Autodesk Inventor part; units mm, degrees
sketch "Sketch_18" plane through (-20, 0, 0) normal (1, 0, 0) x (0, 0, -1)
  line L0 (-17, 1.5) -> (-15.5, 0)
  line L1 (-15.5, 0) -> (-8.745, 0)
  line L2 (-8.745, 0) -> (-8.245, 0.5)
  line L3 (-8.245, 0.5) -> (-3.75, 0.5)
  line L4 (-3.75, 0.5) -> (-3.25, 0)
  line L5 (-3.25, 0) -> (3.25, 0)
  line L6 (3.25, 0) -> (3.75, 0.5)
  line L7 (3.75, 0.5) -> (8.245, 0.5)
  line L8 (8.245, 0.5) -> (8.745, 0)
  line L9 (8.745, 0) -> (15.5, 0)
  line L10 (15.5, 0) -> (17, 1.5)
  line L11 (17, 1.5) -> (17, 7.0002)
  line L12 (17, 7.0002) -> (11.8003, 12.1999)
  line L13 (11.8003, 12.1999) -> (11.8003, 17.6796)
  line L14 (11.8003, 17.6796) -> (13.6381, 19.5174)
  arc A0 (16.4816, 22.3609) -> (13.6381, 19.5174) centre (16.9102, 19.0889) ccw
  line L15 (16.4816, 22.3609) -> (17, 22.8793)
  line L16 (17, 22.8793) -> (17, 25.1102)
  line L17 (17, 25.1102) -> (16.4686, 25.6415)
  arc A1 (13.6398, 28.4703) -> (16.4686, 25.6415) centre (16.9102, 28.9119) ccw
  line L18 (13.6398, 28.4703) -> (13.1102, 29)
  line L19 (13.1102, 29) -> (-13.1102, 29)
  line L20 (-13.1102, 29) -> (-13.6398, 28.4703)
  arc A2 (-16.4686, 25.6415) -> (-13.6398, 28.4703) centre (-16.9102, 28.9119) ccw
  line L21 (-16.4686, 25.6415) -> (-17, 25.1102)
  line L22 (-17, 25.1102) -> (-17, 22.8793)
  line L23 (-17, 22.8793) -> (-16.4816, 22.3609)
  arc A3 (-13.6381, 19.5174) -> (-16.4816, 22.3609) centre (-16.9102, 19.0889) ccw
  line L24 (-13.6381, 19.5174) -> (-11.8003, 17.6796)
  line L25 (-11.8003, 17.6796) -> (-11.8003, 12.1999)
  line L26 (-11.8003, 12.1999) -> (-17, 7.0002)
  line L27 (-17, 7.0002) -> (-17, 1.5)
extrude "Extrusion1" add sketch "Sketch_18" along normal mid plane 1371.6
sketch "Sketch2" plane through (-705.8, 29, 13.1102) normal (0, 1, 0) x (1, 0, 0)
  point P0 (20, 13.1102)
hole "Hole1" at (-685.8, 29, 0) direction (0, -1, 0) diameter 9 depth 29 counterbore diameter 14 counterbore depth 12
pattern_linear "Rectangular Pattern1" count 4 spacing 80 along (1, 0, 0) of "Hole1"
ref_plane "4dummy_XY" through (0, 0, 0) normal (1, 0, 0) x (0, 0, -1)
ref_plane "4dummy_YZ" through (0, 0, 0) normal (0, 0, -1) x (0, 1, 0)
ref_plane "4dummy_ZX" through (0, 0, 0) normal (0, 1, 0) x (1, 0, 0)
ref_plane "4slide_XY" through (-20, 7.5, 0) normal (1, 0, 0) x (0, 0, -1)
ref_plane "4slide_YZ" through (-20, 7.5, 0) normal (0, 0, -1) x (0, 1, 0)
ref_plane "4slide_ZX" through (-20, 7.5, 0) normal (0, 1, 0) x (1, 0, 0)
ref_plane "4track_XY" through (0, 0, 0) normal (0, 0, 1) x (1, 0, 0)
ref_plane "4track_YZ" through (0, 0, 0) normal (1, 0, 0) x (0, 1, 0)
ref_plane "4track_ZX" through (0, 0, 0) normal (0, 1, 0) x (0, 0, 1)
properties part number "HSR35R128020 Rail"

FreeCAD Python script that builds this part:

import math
import FreeCAD as App
import Part
import Sketcher
from FreeCAD import Vector
Q = App.Units.Quantity

doc = App.newDocument("Part")
body = doc.addObject("PartDesign::Body", "Body")

# Sketch on YZ plane
sketch1 = body.newObject("Sketcher::SketchObject", "Sketch")
sketch1.AttachmentSupport = (doc.getObject("YZ_Plane"), [""])
sketch1.MapMode = "FlatFace"
sketch1.AttachmentOffset = App.Placement(Vector(0, 0, -20), App.Rotation())
sketch1.addGeometry([
    Part.LineSegment(Vector(7.0002, 17, 0), Vector(1.5, 17, 0)),  # 0
    Part.LineSegment(Vector(1.5, 17, 0), Vector(0, 15.5, 0)),  # 1
    Part.LineSegment(Vector(0, 15.5, 0), Vector(0, 8.745, 0)),  # 2
    Part.LineSegment(Vector(0, 8.745, 0), Vector(0.5, 8.245, 0)),  # 3
    Part.LineSegment(Vector(0.5, 8.245, 0), Vector(0.5, 3.75, 0)),  # 4
    Part.LineSegment(Vector(0.5, 3.75, 0), Vector(0, 3.25, 0)),  # 5
    Part.LineSegment(Vector(0, 3.25, 0), Vector(0, -3.25, 0)),  # 6
    Part.LineSegment(Vector(0, -3.25, 0), Vector(0.5, -3.75, 0)),  # 7
    Part.LineSegment(Vector(0.5, -3.75, 0), Vector(0.5, -8.245, 0)),  # 8
    Part.LineSegment(Vector(0.5, -8.245, 0), Vector(0, -8.745, 0)),  # 9
    Part.LineSegment(Vector(0, -8.745, 0), Vector(0, -15.5, 0)),  # 10
    Part.LineSegment(Vector(0, -15.5, 0), Vector(1.5, -17, 0)),  # 11
    Part.LineSegment(Vector(1.5, -17, 0), Vector(7.0002, -17, 0)),  # 12
    Part.LineSegment(Vector(7.0002, -17, 0), Vector(12.1999, -11.8003, 0)),  # 13
    Part.LineSegment(Vector(12.1999, -11.8003, 0), Vector(17.6796, -11.8003, 0)),  # 14
    Part.LineSegment(Vector(17.6796, -11.8003, 0), Vector(19.5174, -13.6381, 0)),  # 15
    Part.ArcOfCircle(Part.Circle(Vector(19.0889, -16.9102, 0), Vector(0, 0, 1), 3.299952), math.radians(7.462698), math.radians(82.539249)),  # 16
    Part.LineSegment(Vector(22.3609, -16.4816, 0), Vector(22.8793, -17, 0)),  # 17
    Part.LineSegment(Vector(22.8793, -17, 0), Vector(25.1102, -17, 0)),  # 18
    Part.LineSegment(Vector(25.1102, -17, 0), Vector(25.6415, -16.4686, 0)),  # 19
    Part.ArcOfCircle(Part.Circle(Vector(28.9119, -16.9102, 0), Vector(0, 0, 1), 3.30008), math.radians(97.6901), math.radians(172.3099)),  # 20
    Part.LineSegment(Vector(28.4703, -13.6398, 0), Vector(29, -13.1102, 0)),  # 21
    Part.LineSegment(Vector(29, -13.1102, 0), Vector(29, 13.1102, 0)),  # 22
    Part.LineSegment(Vector(29, 13.1102, 0), Vector(28.4703, 13.6398, 0)),  # 23
    Part.ArcOfCircle(Part.Circle(Vector(28.9119, 16.9102, 0), Vector(0, 0, 1), 3.30008), math.radians(-172.3099), math.radians(-97.6901)),  # 24
    Part.LineSegment(Vector(25.6415, 16.4686, 0), Vector(25.1102, 17, 0)),  # 25
    Part.LineSegment(Vector(25.1102, 17, 0), Vector(22.8793, 17, 0)),  # 26
    Part.LineSegment(Vector(22.8793, 17, 0), Vector(22.3609, 16.4816, 0)),  # 27
    Part.ArcOfCircle(Part.Circle(Vector(19.0889, 16.9102, 0), Vector(0, 0, 1), 3.300038), math.radians(-82.539249), math.radians(-7.462698)),  # 28
    Part.LineSegment(Vector(19.5174, 13.6381, 0), Vector(17.6796, 11.8003, 0)),  # 29
    Part.LineSegment(Vector(17.6796, 11.8003, 0), Vector(12.1999, 11.8003, 0)),  # 30
    Part.LineSegment(Vector(12.1999, 11.8003, 0), Vector(7.0002, 17, 0)),  # 31
], False)
sketch1.addConstraint([
    Sketcher.Constraint("Coincident", 0, 2, 1, 1),
    Sketcher.Constraint("Coincident", 1, 2, 2, 1),
    Sketcher.Constraint("Coincident", 2, 2, 3, 1),
    Sketcher.Constraint("Coincident", 3, 2, 4, 1),
    Sketcher.Constraint("Coincident", 4, 2, 5, 1),
    Sketcher.Constraint("Coincident", 5, 2, 6, 1),
    Sketcher.Constraint("Coincident", 6, 2, 7, 1),
    Sketcher.Constraint("Coincident", 7, 2, 8, 1),
    Sketcher.Constraint("Coincident", 8, 2, 9, 1),
    Sketcher.Constraint("Coincident", 9, 2, 10, 1),
    Sketcher.Constraint("Coincident", 10, 2, 11, 1),
    Sketcher.Constraint("Coincident", 11, 2, 12, 1),
    Sketcher.Constraint("Coincident", 12, 2, 13, 1),
    Sketcher.Constraint("Coincident", 13, 2, 14, 1),
    Sketcher.Constraint("Coincident", 14, 2, 15, 1),
    Sketcher.Constraint("Coincident", 15, 2, 16, 2),
    Sketcher.Constraint("Coincident", 16, 1, 17, 1),
    Sketcher.Constraint("Coincident", 17, 2, 18, 1),
    Sketcher.Constraint("Coincident", 18, 2, 19, 1),
    Sketcher.Constraint("Coincident", 19, 2, 20, 2),
    Sketcher.Constraint("Coincident", 20, 1, 21, 1),
    Sketcher.Constraint("Coincident", 21, 2, 22, 1),
    Sketcher.Constraint("Coincident", 22, 2, 23, 1),
    Sketcher.Constraint("Coincident", 23, 2, 24, 2),
    Sketcher.Constraint("Coincident", 24, 1, 25, 1),
    Sketcher.Constraint("Coincident", 25, 2, 26, 1),
    Sketcher.Constraint("Coincident", 26, 2, 27, 1),
    Sketcher.Constraint("Coincident", 27, 2, 28, 2),
    Sketcher.Constraint("Coincident", 28, 1, 29, 1),
    Sketcher.Constraint("Coincident", 29, 2, 30, 1),
    Sketcher.Constraint("Coincident", 30, 2, 31, 1),
    Sketcher.Constraint("Coincident", 31, 2, 0, 1),
    Sketcher.Constraint("Horizontal", 0),
    Sketcher.Constraint("Vertical", 2),
    Sketcher.Constraint("Vertical", 4),
    Sketcher.Constraint("Vertical", 6),
    Sketcher.Constraint("Vertical", 8),
    Sketcher.Constraint("Vertical", 10),
    Sketcher.Constraint("Horizontal", 12),
    Sketcher.Constraint("Horizontal", 14),
    Sketcher.Constraint("Horizontal", 18),
    Sketcher.Constraint("Vertical", 22),
    Sketcher.Constraint("Horizontal", 26),
    Sketcher.Constraint("Horizontal", 30),
    Sketcher.Constraint("PointOnObject", 1, 2, -2),
    Sketcher.Constraint("PointOnObject", 5, 2, -2),
    Sketcher.Constraint("PointOnObject", 9, 2, -2),
    Sketcher.Constraint("Radius", 16, Q("3.3 mm")),
    Sketcher.Constraint("Radius", 20, Q("3.3 mm")),
    Sketcher.Constraint("Radius", 24, Q("3.3 mm")),
    Sketcher.Constraint("Radius", 28, Q("3.3 mm")),
    Sketcher.Constraint("DistanceY", 6, 2, 6, 1, Q("6.5 mm")),
    Sketcher.Constraint("DistanceY", -1, 1, 0, 2, Q("17 mm")),
    Sketcher.Constraint("DistanceY", 11, 2, -1, 1, Q("17 mm")),
    Sketcher.Constraint("DistanceY", 17, 2, -1, 1, Q("17 mm")),
    Sketcher.Constraint("DistanceX", -1, 1, 21, 2, Q("29 mm")),
    Sketcher.Constraint("DistanceY", -1, 1, 25, 2, Q("17 mm")),
    Sketcher.Constraint("DistanceX", 3, 2, 0, 2, Q("1 mm")),
    Sketcher.Constraint("DistanceY", 6, 2, 4, 2, Q("7 mm")),
    Sketcher.Constraint("DistanceY", 7, 2, 5, 2, Q("7 mm")),
    Sketcher.Constraint("DistanceX", 8, 2, 11, 2, Q("1 mm")),
    Sketcher.Constraint("DistanceX", -1, 1, 0, 2, Q("1.5 mm")),
    Sketcher.Constraint("DistanceY", -1, 1, 1, 2, Q("15.5 mm")),
    Sketcher.Constraint("DistanceX", -1, 1, 7, 2, Q("0.5 mm")),
    Sketcher.Constraint("DistanceY", 10, 2, -1, 1, Q("15.5 mm")),
    Sketcher.Constraint("DistanceX", -1, 1, 13, 2, Q("12.2 mm")),
    Sketcher.Constraint("DistanceX", -1, 1, 30, 2, Q("12.2 mm")),
    Sketcher.Constraint("DistanceY", 3, 2, 2, 2, Q("0.5 mm")),
    Sketcher.Constraint("DistanceY", 9, 2, 8, 2, Q("0.5 mm")),
    Sketcher.Constraint("DistanceY", 20, 3, 21, 2, Q("3.8 mm")),
    Sketcher.Constraint("DistanceY", 22, 2, 24, 3, Q("3.8 mm")),
    Sketcher.Constraint("DistanceY", 22, 2, 28, 3, Q("3.8 mm")),
    Sketcher.Constraint("DistanceX", 18, 1, 18, 2, Q("2.231 mm")),
    Sketcher.Constraint("DistanceX", 26, 2, 26, 1, Q("2.231 mm")),
    Sketcher.Constraint("DistanceY", 2, 2, 2, 1, Q("6.755 mm")),
    Sketcher.Constraint("DistanceY", 4, 2, 4, 1, Q("4.495 mm")),
    Sketcher.Constraint("DistanceY", 8, 2, 8, 1, Q("4.495 mm")),
    Sketcher.Constraint("DistanceY", 16, 3, 13, 2, Q("5.11 mm")),
    Sketcher.Constraint("DistanceY", 20, 3, 14, 2, Q("5.11 mm")),
    Sketcher.Constraint("DistanceX", 18, 2, 20, 1, Q("3.36 mm")),
    Sketcher.Constraint("DistanceY", 20, 1, 22, 2, Q("26.75 mm")),
    Sketcher.Constraint("DistanceY", 21, 2, 23, 2, Q("26.75 mm")),
    Sketcher.Constraint("DistanceX", 25, 2, 23, 2, Q("3.36 mm")),
    Sketcher.Constraint("DistanceY", 29, 2, 28, 3, Q("5.11 mm")),
    Sketcher.Constraint("Distance", 15, Q("2.599 mm")),
    Sketcher.Constraint("Distance", 21, Q("0.749 mm")),
    Sketcher.Constraint("Distance", 23, Q("0.749 mm")),
    Sketcher.Constraint("Distance", 29, Q("2.599 mm")),
    Sketcher.Constraint("DistanceX", 0, 2, 0, 1, Q("5.5002 mm")),
    Sketcher.Constraint("DistanceX", 12, 1, 12, 2, Q("5.5002 mm")),
    Sketcher.Constraint("DistanceX", 14, 1, 14, 2, Q("5.4797 mm")),
    Sketcher.Constraint("DistanceX", 30, 2, 30, 1, Q("5.4797 mm")),
    Sketcher.Constraint("DistanceY", 22, 1, 22, 2, Q("26.2204 mm")),
    Sketcher.Constraint("DistanceX", -1, 1, 16, 3, Q("19.089 mm")),
    Sketcher.Constraint("DistanceX", -1, 1, 28, 3, Q("19.089 mm")),
    Sketcher.Constraint("DistanceY", 15, 2, -1, 1, Q("13.638 mm")),
    Sketcher.Constraint("DistanceX", -1, 1, 16, 1, Q("22.361 mm")),
    Sketcher.Constraint("DistanceX", -1, 1, 27, 2, Q("22.361 mm")),
    Sketcher.Constraint("DistanceY", 16, 1, 19, 2, Q("0.013 mm")),
    Sketcher.Constraint("DistanceY", 24, 1, 27, 2, Q("0.013 mm")),
])
pad1 = body.newObject("PartDesign::Pad", "Pad")
pad1.Profile = sketch1
pad1.Length = 1371.6
pad1.Midplane = True

# Sketch on XZ plane
sketch2 = body.newObject("Sketcher::SketchObject", "Sketch001")
sketch2.AttachmentSupport = (doc.getObject("XZ_Plane"), [""])
sketch2.MapMode = "FlatFace"
sketch2.AttachmentOffset = App.Placement(Vector(0, 0, -29), App.Rotation())
sketch2.addGeometry(Part.Circle(Vector(-685.8, 0, 0), Vector(0, 0, 1), 4.5), False)
sketch2.addConstraint([
    Sketcher.Constraint("PointOnObject", 0, 3, -1),
    Sketcher.Constraint("Diameter", 0, Q("9 mm")),
    Sketcher.Constraint("DistanceX", 0, 3, -1, 1, Q("685.8 mm")),
])
doc.recompute()
hole = body.newObject("PartDesign::Hole", "Hole")
hole.Profile = sketch2
hole.ThreadType = "None"
hole.Diameter = 9
hole.DepthType = "Dimension"
hole.Depth = 29
hole.DrillPoint = "Flat"
hole.HoleCutType = "Counterbore"
hole.HoleCutDiameter = 14
hole.HoleCutDepth = 12
hole.Reversed = True
doc.recompute()

linearpattern = body.newObject("PartDesign::LinearPattern", "LinearPattern")
linearpattern.Originals = [hole]
linearpattern.Direction = (doc.getObject("X_Axis"), [""])
linearpattern.Mode = "offset"
linearpattern.Offset = 80
linearpattern.Occurrences = 4
body.Tip = linearpattern

doc.recompute()
